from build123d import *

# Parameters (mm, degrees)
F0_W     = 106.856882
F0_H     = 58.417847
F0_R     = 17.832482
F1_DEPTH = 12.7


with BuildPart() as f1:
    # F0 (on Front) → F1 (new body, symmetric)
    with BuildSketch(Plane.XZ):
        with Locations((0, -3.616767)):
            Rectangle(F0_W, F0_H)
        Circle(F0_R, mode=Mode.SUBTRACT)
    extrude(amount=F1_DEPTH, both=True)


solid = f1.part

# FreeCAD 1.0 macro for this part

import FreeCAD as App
import Part
import Sketcher
Q = App.Units.Quantity


def add_polygon(sketch, points):
    """Adds a closed chain of lines whose ends are joined by coincident constraints."""
    first, n = sketch.GeometryCount, len(points)
    for a, b in zip(points, points[1:] + points[:1]):
        sketch.addGeometry(Part.LineSegment(App.Vector(*a, 0), App.Vector(*b, 0)), False)
    for i in range(n):
        sketch.addConstraint(Sketcher.Constraint("Coincident", first + i, 2, first + (i + 1) % n, 1))

doc = App.newDocument("Part")
params = doc.addObject("Spreadsheet::Sheet", "Params")
for row, (alias, value) in enumerate([
    ("pad1_length", "1 in"),
], start=1):
    params.set(f"A{row}", alias)
    params.set(f"B{row}", "=" + value)
    params.setAlias(f"B{row}", alias)

body = doc.addObject("PartDesign::Body", "Body")

sketch1 = body.newObject("Sketcher::SketchObject", "Sketch")
sketch1.AttachmentSupport = (doc.getObject("XZ_Plane"), [""])
sketch1.MapMode = "FlatFace"
add_polygon(sketch1, [(-53, 26), (-53, -33), (53, -33), (53, 26)])
sketch1.addGeometry(Part.Circle(App.Vector(0, 0, 0), App.Vector(0, 0, 1), 18), False)
sketch1.addConstraint([
    Sketcher.Constraint("Vertical", 0),
    Sketcher.Constraint("Horizontal", 1),
    Sketcher.Constraint("Vertical", 2),
    Sketcher.Constraint("Horizontal", 3),
    Sketcher.Constraint("Coincident", 4, 3, -1, 1),
    Sketcher.Constraint("Diameter", 4, Q("35.664964 mm")),
    Sketcher.Constraint("DistanceX", 1, 1, 1, 2, Q("106.856882 mm")),
    Sketcher.Constraint("DistanceY", 0, 2, 0, 1, Q("58.417847 mm")),
    Sketcher.Constraint("DistanceX", 0, 2, -1, 1, Q("53.428441 mm")),
    Sketcher.Constraint("DistanceY", 0, 2, -1, 1, Q("32.825691 mm")),
])
pad1 = body.newObject("PartDesign::Pad", "Pad")
pad1.Profile = sketch1
pad1.setExpression("Length", "Params.pad1_length")
pad1.Midplane = True

doc.recompute()
